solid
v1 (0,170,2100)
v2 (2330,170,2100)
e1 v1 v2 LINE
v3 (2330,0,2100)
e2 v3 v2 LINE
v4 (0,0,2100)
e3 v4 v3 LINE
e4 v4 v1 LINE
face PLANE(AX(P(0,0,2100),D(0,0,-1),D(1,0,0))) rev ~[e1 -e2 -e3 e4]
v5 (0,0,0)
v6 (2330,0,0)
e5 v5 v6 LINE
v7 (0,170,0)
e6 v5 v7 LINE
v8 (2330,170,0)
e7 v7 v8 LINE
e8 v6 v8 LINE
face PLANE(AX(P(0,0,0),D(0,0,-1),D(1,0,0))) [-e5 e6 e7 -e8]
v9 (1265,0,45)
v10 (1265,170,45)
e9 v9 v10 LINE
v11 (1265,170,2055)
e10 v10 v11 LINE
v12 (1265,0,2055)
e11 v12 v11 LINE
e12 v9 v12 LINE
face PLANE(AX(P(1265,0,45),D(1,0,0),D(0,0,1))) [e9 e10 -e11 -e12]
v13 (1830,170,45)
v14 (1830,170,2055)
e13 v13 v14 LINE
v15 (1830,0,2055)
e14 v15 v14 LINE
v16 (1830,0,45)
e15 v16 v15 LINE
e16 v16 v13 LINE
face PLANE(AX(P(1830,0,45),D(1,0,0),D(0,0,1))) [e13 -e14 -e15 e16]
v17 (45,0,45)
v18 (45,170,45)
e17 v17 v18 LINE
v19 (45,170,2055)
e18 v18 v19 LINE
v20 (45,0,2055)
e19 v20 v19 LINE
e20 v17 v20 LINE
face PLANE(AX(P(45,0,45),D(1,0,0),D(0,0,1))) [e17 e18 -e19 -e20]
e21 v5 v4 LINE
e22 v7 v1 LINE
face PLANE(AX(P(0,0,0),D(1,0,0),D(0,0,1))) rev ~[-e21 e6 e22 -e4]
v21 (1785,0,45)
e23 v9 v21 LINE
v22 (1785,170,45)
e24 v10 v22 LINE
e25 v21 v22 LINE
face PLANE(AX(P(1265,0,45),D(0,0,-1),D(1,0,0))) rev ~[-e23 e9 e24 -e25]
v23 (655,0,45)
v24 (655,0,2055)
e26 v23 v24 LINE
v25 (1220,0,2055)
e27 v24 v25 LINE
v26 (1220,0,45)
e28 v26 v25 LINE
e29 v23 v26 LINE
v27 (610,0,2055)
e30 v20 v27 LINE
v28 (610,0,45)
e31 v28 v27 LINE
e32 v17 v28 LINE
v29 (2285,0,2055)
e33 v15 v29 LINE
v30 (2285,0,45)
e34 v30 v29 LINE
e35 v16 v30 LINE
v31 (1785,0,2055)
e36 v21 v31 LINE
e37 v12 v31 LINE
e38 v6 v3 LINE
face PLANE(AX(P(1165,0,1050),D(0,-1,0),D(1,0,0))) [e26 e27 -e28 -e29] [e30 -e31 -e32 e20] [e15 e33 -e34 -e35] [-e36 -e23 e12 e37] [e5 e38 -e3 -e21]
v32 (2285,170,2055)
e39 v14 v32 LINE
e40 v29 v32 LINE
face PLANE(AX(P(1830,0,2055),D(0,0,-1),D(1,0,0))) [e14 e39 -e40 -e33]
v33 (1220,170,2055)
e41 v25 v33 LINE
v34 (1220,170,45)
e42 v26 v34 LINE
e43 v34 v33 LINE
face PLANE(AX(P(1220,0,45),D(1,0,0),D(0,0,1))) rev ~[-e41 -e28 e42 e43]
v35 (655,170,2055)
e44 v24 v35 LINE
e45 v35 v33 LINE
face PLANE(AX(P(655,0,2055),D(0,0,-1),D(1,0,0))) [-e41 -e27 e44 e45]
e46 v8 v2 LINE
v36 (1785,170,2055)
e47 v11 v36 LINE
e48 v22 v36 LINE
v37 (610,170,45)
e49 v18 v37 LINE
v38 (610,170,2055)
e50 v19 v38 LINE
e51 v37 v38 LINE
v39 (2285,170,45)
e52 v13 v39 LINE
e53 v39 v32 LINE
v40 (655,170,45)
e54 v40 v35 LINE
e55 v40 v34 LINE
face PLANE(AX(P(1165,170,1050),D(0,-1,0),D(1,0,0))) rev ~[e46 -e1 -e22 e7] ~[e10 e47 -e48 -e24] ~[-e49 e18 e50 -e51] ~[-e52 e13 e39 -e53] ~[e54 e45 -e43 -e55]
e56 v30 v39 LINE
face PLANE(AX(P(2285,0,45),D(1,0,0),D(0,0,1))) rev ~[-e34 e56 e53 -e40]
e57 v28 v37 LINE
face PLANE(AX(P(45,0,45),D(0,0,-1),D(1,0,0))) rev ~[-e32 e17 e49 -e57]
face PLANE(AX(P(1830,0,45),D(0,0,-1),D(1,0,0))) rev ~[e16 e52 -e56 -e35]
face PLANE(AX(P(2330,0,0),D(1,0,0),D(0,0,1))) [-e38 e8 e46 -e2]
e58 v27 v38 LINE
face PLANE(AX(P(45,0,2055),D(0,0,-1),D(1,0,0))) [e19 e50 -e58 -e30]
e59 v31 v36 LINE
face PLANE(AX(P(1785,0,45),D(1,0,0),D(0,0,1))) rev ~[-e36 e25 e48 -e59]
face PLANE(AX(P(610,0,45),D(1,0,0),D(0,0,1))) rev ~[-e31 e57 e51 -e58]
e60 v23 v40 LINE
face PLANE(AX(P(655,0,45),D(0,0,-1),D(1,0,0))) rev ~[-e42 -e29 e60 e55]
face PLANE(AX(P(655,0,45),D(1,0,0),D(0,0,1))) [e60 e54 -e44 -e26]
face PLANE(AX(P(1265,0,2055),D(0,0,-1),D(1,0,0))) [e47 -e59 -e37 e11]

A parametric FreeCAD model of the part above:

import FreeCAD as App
import Part
import Sketcher
Q = App.Units.Quantity

doc = App.newDocument("Part")
params = doc.addObject("Spreadsheet::Sheet", "Params")
for row, (alias, value) in enumerate([
    ("sketch1_width", "2330 mm"),
    ("sketch1_width2", "565 mm"),
    ("sketch1_width3", "520 mm"),
    ("sketch1_width4", "455 mm"),
    ("sketch1_height", "2100 mm"),
    ("pad1_length", "170 mm"),
], start=1):
    params.set(f"A{row}", alias)
    params.set(f"B{row}", "=" + value)
    params.setAlias(f"B{row}", alias)

body = doc.addObject("PartDesign::Body", "Body")

# Sketch on XZ plane
sketch1 = body.newObject("Sketcher::SketchObject", "Sketch")
sketch1.AttachmentSupport = (doc.getObject("XZ_Plane"), [""])
sketch1.MapMode = "FlatFace"
sketch1.addGeometry(Part.LineSegment(App.Vector(0, 2100, 0), App.Vector(0, 0, 0)), False)
sketch1.addGeometry(Part.LineSegment(App.Vector(0, 0, 0), App.Vector(2330, 0, 0)), False)
sketch1.addGeometry(Part.LineSegment(App.Vector(2330, 0, 0), App.Vector(2330, 2100, 0)), False)
sketch1.addGeometry(Part.LineSegment(App.Vector(2330, 2100, 0), App.Vector(0, 2100, 0)), False)
sketch1.addGeometry(Part.LineSegment(App.Vector(610, 45, 0), App.Vector(45, 45, 0)), False)
sketch1.addGeometry(Part.LineSegment(App.Vector(45, 45, 0), App.Vector(45, 2055, 0)), False)
sketch1.addGeometry(Part.LineSegment(App.Vector(45, 2055, 0), App.Vector(610, 2055, 0)), False)
sketch1.addGeometry(Part.LineSegment(App.Vector(610, 2055, 0), App.Vector(610, 45, 0)), False)
sketch1.addGeometry(Part.LineSegment(App.Vector(1220, 45, 0), App.Vector(655, 45, 0)), False)
sketch1.addGeometry(Part.LineSegment(App.Vector(655, 45, 0), App.Vector(655, 2055, 0)), False)
sketch1.addGeometry(Part.LineSegment(App.Vector(655, 2055, 0), App.Vector(1220, 2055, 0)), False)
sketch1.addGeometry(Part.LineSegment(App.Vector(1220, 2055, 0), App.Vector(1220, 45, 0)), False)
sketch1.addGeometry(Part.LineSegment(App.Vector(1785, 45, 0), App.Vector(1265, 45, 0)), False)
sketch1.addGeometry(Part.LineSegment(App.Vector(1265, 45, 0), App.Vector(1265, 2055, 0)), False)
sketch1.addGeometry(Part.LineSegment(App.Vector(1265, 2055, 0), App.Vector(1785, 2055, 0)), False)
sketch1.addGeometry(Part.LineSegment(App.Vector(1785, 2055, 0), App.Vector(1785, 45, 0)), False)
sketch1.addGeometry(Part.LineSegment(App.Vector(2285, 45, 0), App.Vector(1830, 45, 0)), False)
sketch1.addGeometry(Part.LineSegment(App.Vector(1830, 45, 0), App.Vector(1830, 2055, 0)), False)
sketch1.addGeometry(Part.LineSegment(App.Vector(1830, 2055, 0), App.Vector(2285, 2055, 0)), False)
sketch1.addGeometry(Part.LineSegment(App.Vector(2285, 2055, 0), App.Vector(2285, 45, 0)), False)
sketch1.addConstraint(Sketcher.Constraint("Coincident", 0, 2, 1, 1))
sketch1.addConstraint(Sketcher.Constraint("Coincident", 1, 2, 2, 1))
sketch1.addConstraint(Sketcher.Constraint("Coincident", 2, 2, 3, 1))
sketch1.addConstraint(Sketcher.Constraint("Coincident", 3, 2, 0, 1))
sketch1.addConstraint(Sketcher.Constraint("Coincident", 4, 2, 5, 1))
sketch1.addConstraint(Sketcher.Constraint("Coincident", 5, 2, 6, 1))
sketch1.addConstraint(Sketcher.Constraint("Coincident", 6, 2, 7, 1))
sketch1.addConstraint(Sketcher.Constraint("Coincident", 7, 2, 4, 1))
sketch1.addConstraint(Sketcher.Constraint("Coincident", 8, 2, 9, 1))
sketch1.addConstraint(Sketcher.Constraint("Coincident", 9, 2, 10, 1))
sketch1.addConstraint(Sketcher.Constraint("Coincident", 10, 2, 11, 1))
sketch1.addConstraint(Sketcher.Constraint("Coincident", 11, 2, 8, 1))
sketch1.addConstraint(Sketcher.Constraint("Coincident", 12, 2, 13, 1))
sketch1.addConstraint(Sketcher.Constraint("Coincident", 13, 2, 14, 1))
sketch1.addConstraint(Sketcher.Constraint("Coincident", 14, 2, 15, 1))
sketch1.addConstraint(Sketcher.Constraint("Coincident", 15, 2, 12, 1))
sketch1.addConstraint(Sketcher.Constraint("Coincident", 16, 2, 17, 1))
sketch1.addConstraint(Sketcher.Constraint("Coincident", 17, 2, 18, 1))
sketch1.addConstraint(Sketcher.Constraint("Coincident", 18, 2, 19, 1))
sketch1.addConstraint(Sketcher.Constraint("Coincident", 19, 2, 16, 1))
sketch1.addConstraint(Sketcher.Constraint("Vertical", 0))
sketch1.addConstraint(Sketcher.Constraint("Horizontal", 1))
sketch1.addConstraint(Sketcher.Constraint("Vertical", 2))
sketch1.addConstraint(Sketcher.Constraint("Horizontal", 3))
sketch1.addConstraint(Sketcher.Constraint("Horizontal", 4))
sketch1.addConstraint(Sketcher.Constraint("Vertical", 5))
sketch1.addConstraint(Sketcher.Constraint("Horizontal", 6))
sketch1.addConstraint(Sketcher.Constraint("Vertical", 7))
sketch1.addConstraint(Sketcher.Constraint("Horizontal", 8))
sketch1.addConstraint(Sketcher.Constraint("Vertical", 9))
sketch1.addConstraint(Sketcher.Constraint("Horizontal", 10))
sketch1.addConstraint(Sketcher.Constraint("Vertical", 11))
sketch1.addConstraint(Sketcher.Constraint("Horizontal", 12))
sketch1.addConstraint(Sketcher.Constraint("Vertical", 13))
sketch1.addConstraint(Sketcher.Constraint("Horizontal", 14))
sketch1.addConstraint(Sketcher.Constraint("Vertical", 15))
sketch1.addConstraint(Sketcher.Constraint("Horizontal", 16))
sketch1.addConstraint(Sketcher.Constraint("Vertical", 17))
sketch1.addConstraint(Sketcher.Constraint("Horizontal", 18))
sketch1.addConstraint(Sketcher.Constraint("Vertical", 19))
sketch1.addConstraint(Sketcher.Constraint("Coincident", 0, 2, -1, 1))
sketch1.addConstraint(Sketcher.Constraint("Horizontal", 7, 2, 8, 2))
sketch1.addConstraint(Sketcher.Constraint("Horizontal", 6, 2, 9, 2))
sketch1.addConstraint(Sketcher.Constraint("Horizontal", 11, 2, 12, 2))
sketch1.addConstraint(Sketcher.Constraint("Horizontal", 10, 2, 13, 2))
sketch1.addConstraint(Sketcher.Constraint("Horizontal", 15, 2, 16, 2))
sketch1.addConstraint(Sketcher.Constraint("Horizontal", 14, 2, 17, 2))
sketch1.addConstraint(Sketcher.Constraint("Equal", 6, 8))
sketch1.addConstraint(Sketcher.Constraint("DistanceX", 1, 1, 1, 2, Q("2330 mm")))
sketch1.addConstraint(Sketcher.Constraint("DistanceX", 4, 2, 4, 1, Q("565 mm")))
sketch1.addConstraint(Sketcher.Constraint("DistanceX", 12, 2, 12, 1, Q("520 mm")))
sketch1.addConstraint(Sketcher.Constraint("DistanceX", 16, 2, 16, 1, Q("455 mm")))
sketch1.addConstraint(Sketcher.Constraint("DistanceY", 0, 2, 0, 1, Q("2100 mm")))
sketch1.addConstraint(Sketcher.Constraint("DistanceY", 5, 1, 5, 2, Q("2010 mm")))
sketch1.addConstraint(Sketcher.Constraint("DistanceX", -1, 1, 4, 2, Q("45 mm")))
sketch1.addConstraint(Sketcher.Constraint("DistanceY", -1, 1, 4, 2, Q("45 mm")))
sketch1.addConstraint(Sketcher.Constraint("DistanceX", -1, 1, 8, 2, Q("655 mm")))
sketch1.addConstraint(Sketcher.Constraint("DistanceX", -1, 1, 12, 2, Q("1265 mm")))
sketch1.addConstraint(Sketcher.Constraint("DistanceX", -1, 1, 16, 2, Q("1830 mm")))
sketch1.setExpression("Constraints[48]", "Params.sketch1_width")
sketch1.setExpression("Constraints[49]", "Params.sketch1_width2")
sketch1.setExpression("Constraints[50]", "Params.sketch1_width3")
sketch1.setExpression("Constraints[51]", "Params.sketch1_width4")
sketch1.setExpression("Constraints[52]", "Params.sketch1_height")
pad1 = body.newObject("PartDesign::Pad", "Pad")
pad1.Profile = sketch1
pad1.setExpression("Length", "Params.pad1_length")
pad1.Reversed = True

doc.recompute()
